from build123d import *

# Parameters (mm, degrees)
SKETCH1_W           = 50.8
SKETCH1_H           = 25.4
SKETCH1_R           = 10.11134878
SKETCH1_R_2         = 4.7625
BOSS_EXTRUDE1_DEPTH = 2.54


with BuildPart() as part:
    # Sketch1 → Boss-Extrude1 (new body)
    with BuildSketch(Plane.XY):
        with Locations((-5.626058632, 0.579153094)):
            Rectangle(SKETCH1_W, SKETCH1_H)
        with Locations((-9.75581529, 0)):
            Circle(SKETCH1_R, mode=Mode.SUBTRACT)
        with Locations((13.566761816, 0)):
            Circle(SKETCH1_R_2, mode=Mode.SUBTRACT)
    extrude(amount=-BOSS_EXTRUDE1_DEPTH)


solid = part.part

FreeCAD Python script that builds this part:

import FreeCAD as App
import Part
import Sketcher
from FreeCAD import Vector
Q = App.Units.Quantity

doc = App.newDocument("Part")
body = doc.addObject("PartDesign::Body", "Body")

# Sketch on XY plane
sketch1 = body.newObject("Sketcher::SketchObject", "Sketch")
sketch1.AttachmentSupport = (doc.getObject("XY_Plane"), [""])
sketch1.MapMode = "FlatFace"
sketch1.addGeometry([
    Part.LineSegment(Vector(-31, 13.3, 0), Vector(-31, -12.1, 0)),  # 0
    Part.LineSegment(Vector(-31, -12.1, 0), Vector(19.8, -12.1, 0)),  # 1
    Part.LineSegment(Vector(19.8, -12.1, 0), Vector(19.8, 13.3, 0)),  # 2
    Part.LineSegment(Vector(19.8, 13.3, 0), Vector(-31, 13.3, 0)),  # 3
    Part.Circle(Vector(-9.8, 0, 0), Vector(0, 0, 1), 10.1),  # 4
    Part.Circle(Vector(13.6, 0, 0), Vector(0, 0, 1), 4.8),  # 5
], False)
sketch1.addConstraint([
    Sketcher.Constraint("Coincident", 0, 2, 1, 1),
    Sketcher.Constraint("Coincident", 1, 2, 2, 1),
    Sketcher.Constraint("Coincident", 2, 2, 3, 1),
    Sketcher.Constraint("Coincident", 3, 2, 0, 1),
    Sketcher.Constraint("Vertical", 0),
    Sketcher.Constraint("Horizontal", 1),
    Sketcher.Constraint("Vertical", 2),
    Sketcher.Constraint("Horizontal", 3),
    Sketcher.Constraint("PointOnObject", 4, 3, -1),
    Sketcher.Constraint("PointOnObject", 5, 3, -1),
    Sketcher.Constraint("DistanceX", 1, 1, 1, 2, Q("2 in")),
    Sketcher.Constraint("DistanceY", 0, 2, 0, 1, Q("1 in")),
    Sketcher.Constraint("Diameter", 5, Q("0.375 in")),
    Sketcher.Constraint("Diameter", 4, 20.222698),
    Sketcher.Constraint("DistanceX", -1, 1, 5, 3, 13.566762),
    Sketcher.Constraint("DistanceX", 0, 2, -1, 1, 31.026059),
    Sketcher.Constraint("DistanceX", 4, 3, -1, 1, 9.755815),
    Sketcher.Constraint("DistanceY", 0, 2, -1, 1, 12.120847),
])
pad1 = body.newObject("PartDesign::Pad", "Pad")
pad1.Profile = sketch1
pad1.Length = Q("0.1 in")
pad1.Reversed = True

doc.recompute()
